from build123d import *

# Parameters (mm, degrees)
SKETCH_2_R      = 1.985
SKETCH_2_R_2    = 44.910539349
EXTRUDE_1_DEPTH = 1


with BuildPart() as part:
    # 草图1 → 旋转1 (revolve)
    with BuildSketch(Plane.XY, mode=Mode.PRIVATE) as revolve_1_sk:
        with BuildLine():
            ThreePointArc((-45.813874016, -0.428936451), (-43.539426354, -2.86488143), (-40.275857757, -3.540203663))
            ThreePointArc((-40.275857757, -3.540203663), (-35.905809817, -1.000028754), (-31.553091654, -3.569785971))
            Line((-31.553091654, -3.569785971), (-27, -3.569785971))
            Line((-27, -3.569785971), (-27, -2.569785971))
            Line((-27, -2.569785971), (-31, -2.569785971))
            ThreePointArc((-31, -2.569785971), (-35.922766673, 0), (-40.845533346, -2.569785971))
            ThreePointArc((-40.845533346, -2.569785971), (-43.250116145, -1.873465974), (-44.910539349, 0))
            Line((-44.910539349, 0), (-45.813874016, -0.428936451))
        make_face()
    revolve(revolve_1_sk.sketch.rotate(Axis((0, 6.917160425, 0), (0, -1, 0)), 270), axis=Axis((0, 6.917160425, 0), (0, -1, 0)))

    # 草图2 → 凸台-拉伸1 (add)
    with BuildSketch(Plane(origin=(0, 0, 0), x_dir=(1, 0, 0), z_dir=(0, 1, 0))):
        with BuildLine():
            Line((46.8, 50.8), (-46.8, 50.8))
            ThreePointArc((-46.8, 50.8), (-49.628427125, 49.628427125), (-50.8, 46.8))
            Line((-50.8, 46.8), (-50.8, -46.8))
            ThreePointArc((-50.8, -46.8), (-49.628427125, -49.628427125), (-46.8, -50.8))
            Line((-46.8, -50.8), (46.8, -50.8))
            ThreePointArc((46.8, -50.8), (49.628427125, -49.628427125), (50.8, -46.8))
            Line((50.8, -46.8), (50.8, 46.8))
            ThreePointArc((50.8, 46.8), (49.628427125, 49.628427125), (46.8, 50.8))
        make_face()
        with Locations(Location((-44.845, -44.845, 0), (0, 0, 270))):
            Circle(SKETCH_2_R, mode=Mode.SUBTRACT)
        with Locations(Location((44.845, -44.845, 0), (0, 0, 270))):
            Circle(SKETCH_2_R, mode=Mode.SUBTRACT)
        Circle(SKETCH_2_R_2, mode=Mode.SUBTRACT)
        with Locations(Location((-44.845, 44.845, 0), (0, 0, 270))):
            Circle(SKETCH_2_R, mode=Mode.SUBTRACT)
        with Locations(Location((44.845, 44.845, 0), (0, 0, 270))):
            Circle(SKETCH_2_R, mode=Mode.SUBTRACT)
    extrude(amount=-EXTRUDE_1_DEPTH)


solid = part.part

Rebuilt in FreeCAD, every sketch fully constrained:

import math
import FreeCAD as App
import Part
import Sketcher

doc = App.newDocument("Part")
body = doc.addObject("PartDesign::Body", "Body")

sketch1 = body.newObject("Sketcher::SketchObject", "Sketch")
sketch1.AttachmentSupport = (doc.getObject("XY_Plane"), [""])
sketch1.MapMode = "FlatFace"
sketch1.addGeometry([
    Part.ArcOfCircle(Part.Circle(App.Vector(-40.8, 1.9, 0), App.Vector(0, 0, 1), 5.5), math.radians(-155), math.radians(-84)),
    Part.ArcOfCircle(Part.Circle(App.Vector(-35.9, -6, 0), App.Vector(0, 0, 1), 5), math.radians(29), math.radians(151)),
    Part.LineSegment(App.Vector(-31.6, -3.6, 0), App.Vector(-27, -3.6, 0)),
    Part.LineSegment(App.Vector(-27, -3.6, 0), App.Vector(-27, -2.6, 0)),
    Part.LineSegment(App.Vector(-27, -2.6, 0), App.Vector(-31, -2.6, 0)),
    Part.ArcOfCircle(Part.Circle(App.Vector(-35.9, -6, 0), App.Vector(0, 0, 1), 6), math.radians(35), math.radians(145)),
    Part.ArcOfCircle(Part.Circle(App.Vector(-40.8, 1.9, 0), App.Vector(0, 0, 1), 4.5), math.radians(-155), math.radians(-90)),
    Part.LineSegment(App.Vector(-44.9, 0, 0), App.Vector(-45.8, -0.4, 0)),
], False)
sketch1.addConstraint([
    Sketcher.Constraint("Coincident", 0, 2, 1, 2),
    Sketcher.Constraint("Coincident", 1, 1, 2, 1),
    Sketcher.Constraint("Coincident", 2, 2, 3, 1),
    Sketcher.Constraint("Coincident", 3, 2, 4, 1),
    Sketcher.Constraint("Coincident", 4, 2, 5, 1),
    Sketcher.Constraint("Coincident", 5, 2, 6, 2),
    Sketcher.Constraint("Coincident", 6, 1, 7, 1),
    Sketcher.Constraint("Coincident", 7, 2, 0, 1),
    Sketcher.Constraint("Horizontal", 2),
    Sketcher.Constraint("Vertical", 3),
    Sketcher.Constraint("Horizontal", 4),
    Sketcher.Constraint("Coincident", 5, 3, 1, 3),
    Sketcher.Constraint("Coincident", 6, 3, 0, 3),
    Sketcher.Constraint("PointOnObject", 6, 1, -1),
    Sketcher.Constraint("Horizontal", 4, 2, 5, 2),
    Sketcher.Constraint("Vertical", 6, 3, 5, 2),
    Sketcher.Constraint("Radius", 1, 5.0),
    Sketcher.Constraint("Radius", 5, 6.0),
    Sketcher.Constraint("Radius", 0, 5.5),
    Sketcher.Constraint("Radius", 6, 4.5),
    Sketcher.Constraint("DistanceX", 4, 2, 4, 1, 4.0),
    Sketcher.Constraint("DistanceY", 3, 1, 3, 2, 1.0),
    Sketcher.Constraint("DistanceY", 1, 3, -1, 1, 6.0),
    Sketcher.Constraint("DistanceX", 2, 2, -1, 1, 27.0),
    Sketcher.Constraint("DistanceX", 2, 1, 2, 2, 4.553092),
    Sketcher.Constraint("DistanceX", 7, 2, 5, 2, 4.968341),
])
revolution = body.newObject("PartDesign::Revolution", "Revolution")
revolution.Profile = sketch1
revolution.ReferenceAxis = (sketch1, ["V_Axis"])
revolution.Angle = 360

sketch2 = body.newObject("Sketcher::SketchObject", "Sketch001")
sketch2.AttachmentSupport = (doc.getObject("XZ_Plane"), [""])
sketch2.MapMode = "FlatFace"
sketch2.addGeometry([
    Part.LineSegment(App.Vector(46.8, -50.8, 0), App.Vector(-46.8, -50.8, 0)),
    Part.ArcOfCircle(Part.Circle(App.Vector(-46.8, -46.8, 0), App.Vector(0, 0, 1), 4), math.radians(180), math.radians(270)),
    Part.LineSegment(App.Vector(-50.8, -46.8, 0), App.Vector(-50.8, 46.8, 0)),
    Part.ArcOfCircle(Part.Circle(App.Vector(-46.8, 46.8, 0), App.Vector(0, 0, 1), 4), math.radians(90), math.radians(180)),
    Part.LineSegment(App.Vector(-46.8, 50.8, 0), App.Vector(46.8, 50.8, 0)),
    Part.ArcOfCircle(Part.Circle(App.Vector(46.8, 46.8, 0), App.Vector(0, 0, 1), 4), math.radians(0), math.radians(90)),
    Part.LineSegment(App.Vector(50.8, 46.8, 0), App.Vector(50.8, -46.8, 0)),
    Part.ArcOfCircle(Part.Circle(App.Vector(46.8, -46.8, 0), App.Vector(0, 0, 1), 4), math.radians(-90), math.radians(0)),
    Part.Circle(App.Vector(-44.8, 44.8, 0), App.Vector(0, 0, 1), 2),
    Part.Circle(App.Vector(44.8, 44.8, 0), App.Vector(0, 0, 1), 2),
    Part.Circle(App.Vector(-44.8, -44.8, 0), App.Vector(0, 0, 1), 2),
    Part.Circle(App.Vector(0, 0, 0), App.Vector(0, 0, 1), 44.9),
    Part.Circle(App.Vector(44.8, -44.8, 0), App.Vector(0, 0, 1), 2),
], False)
sketch2.addConstraint([
    Sketcher.Constraint("Tangent", 0, 2, 1, 2),
    Sketcher.Constraint("Tangent", 1, 1, 2, 1),
    Sketcher.Constraint("Tangent", 2, 2, 3, 2),
    Sketcher.Constraint("Tangent", 3, 1, 4, 1),
    Sketcher.Constraint("Tangent", 4, 2, 5, 2),
    Sketcher.Constraint("Tangent", 5, 1, 6, 1),
    Sketcher.Constraint("Tangent", 6, 2, 7, 2),
    Sketcher.Constraint("Tangent", 7, 1, 0, 1),
    Sketcher.Constraint("Horizontal", 0),
    Sketcher.Constraint("Vertical", 2),
    Sketcher.Constraint("Horizontal", 4),
    Sketcher.Constraint("Vertical", 6),
    Sketcher.Constraint("Coincident", 11, 3, -1, 1),
    Sketcher.Constraint("Equal", 1, 3),
    Sketcher.Constraint("Equal", 3, 5),
    Sketcher.Constraint("Equal", 5, 7),
    Sketcher.Constraint("Equal", 8, 9),
    Sketcher.Constraint("Equal", 9, 10),
    Sketcher.Constraint("Equal", 10, 12),
    Sketcher.Constraint("Symmetric", 1, 3, 5, 3, -1, 1),
    Sketcher.Constraint("Symmetric", 9, 3, 10, 3, -1, 1),
    Sketcher.Constraint("Symmetric", 8, 3, 12, 3, -1, 1),
    Sketcher.Constraint("Symmetric", 8, 3, 9, 3, -2),
    Sketcher.Constraint("Equal", 4, 2),
    Sketcher.Constraint("Radius", 1, 4.0),
    Sketcher.Constraint("Diameter", 8, 3.97),
    Sketcher.Constraint("DistanceX", 0, 2, 0, 1, 93.6),
    Sketcher.Constraint("Diameter", 11, 89.821079),
    Sketcher.Constraint("DistanceX", 8, 3, 9, 3, 89.69),
    Sketcher.Constraint("DistanceY", 10, 3, 8, 3, 89.69),
])
pad1 = body.newObject("PartDesign::Pad", "Pad")
pad1.Profile = sketch2
pad1.Length = 1

doc.recompute()
